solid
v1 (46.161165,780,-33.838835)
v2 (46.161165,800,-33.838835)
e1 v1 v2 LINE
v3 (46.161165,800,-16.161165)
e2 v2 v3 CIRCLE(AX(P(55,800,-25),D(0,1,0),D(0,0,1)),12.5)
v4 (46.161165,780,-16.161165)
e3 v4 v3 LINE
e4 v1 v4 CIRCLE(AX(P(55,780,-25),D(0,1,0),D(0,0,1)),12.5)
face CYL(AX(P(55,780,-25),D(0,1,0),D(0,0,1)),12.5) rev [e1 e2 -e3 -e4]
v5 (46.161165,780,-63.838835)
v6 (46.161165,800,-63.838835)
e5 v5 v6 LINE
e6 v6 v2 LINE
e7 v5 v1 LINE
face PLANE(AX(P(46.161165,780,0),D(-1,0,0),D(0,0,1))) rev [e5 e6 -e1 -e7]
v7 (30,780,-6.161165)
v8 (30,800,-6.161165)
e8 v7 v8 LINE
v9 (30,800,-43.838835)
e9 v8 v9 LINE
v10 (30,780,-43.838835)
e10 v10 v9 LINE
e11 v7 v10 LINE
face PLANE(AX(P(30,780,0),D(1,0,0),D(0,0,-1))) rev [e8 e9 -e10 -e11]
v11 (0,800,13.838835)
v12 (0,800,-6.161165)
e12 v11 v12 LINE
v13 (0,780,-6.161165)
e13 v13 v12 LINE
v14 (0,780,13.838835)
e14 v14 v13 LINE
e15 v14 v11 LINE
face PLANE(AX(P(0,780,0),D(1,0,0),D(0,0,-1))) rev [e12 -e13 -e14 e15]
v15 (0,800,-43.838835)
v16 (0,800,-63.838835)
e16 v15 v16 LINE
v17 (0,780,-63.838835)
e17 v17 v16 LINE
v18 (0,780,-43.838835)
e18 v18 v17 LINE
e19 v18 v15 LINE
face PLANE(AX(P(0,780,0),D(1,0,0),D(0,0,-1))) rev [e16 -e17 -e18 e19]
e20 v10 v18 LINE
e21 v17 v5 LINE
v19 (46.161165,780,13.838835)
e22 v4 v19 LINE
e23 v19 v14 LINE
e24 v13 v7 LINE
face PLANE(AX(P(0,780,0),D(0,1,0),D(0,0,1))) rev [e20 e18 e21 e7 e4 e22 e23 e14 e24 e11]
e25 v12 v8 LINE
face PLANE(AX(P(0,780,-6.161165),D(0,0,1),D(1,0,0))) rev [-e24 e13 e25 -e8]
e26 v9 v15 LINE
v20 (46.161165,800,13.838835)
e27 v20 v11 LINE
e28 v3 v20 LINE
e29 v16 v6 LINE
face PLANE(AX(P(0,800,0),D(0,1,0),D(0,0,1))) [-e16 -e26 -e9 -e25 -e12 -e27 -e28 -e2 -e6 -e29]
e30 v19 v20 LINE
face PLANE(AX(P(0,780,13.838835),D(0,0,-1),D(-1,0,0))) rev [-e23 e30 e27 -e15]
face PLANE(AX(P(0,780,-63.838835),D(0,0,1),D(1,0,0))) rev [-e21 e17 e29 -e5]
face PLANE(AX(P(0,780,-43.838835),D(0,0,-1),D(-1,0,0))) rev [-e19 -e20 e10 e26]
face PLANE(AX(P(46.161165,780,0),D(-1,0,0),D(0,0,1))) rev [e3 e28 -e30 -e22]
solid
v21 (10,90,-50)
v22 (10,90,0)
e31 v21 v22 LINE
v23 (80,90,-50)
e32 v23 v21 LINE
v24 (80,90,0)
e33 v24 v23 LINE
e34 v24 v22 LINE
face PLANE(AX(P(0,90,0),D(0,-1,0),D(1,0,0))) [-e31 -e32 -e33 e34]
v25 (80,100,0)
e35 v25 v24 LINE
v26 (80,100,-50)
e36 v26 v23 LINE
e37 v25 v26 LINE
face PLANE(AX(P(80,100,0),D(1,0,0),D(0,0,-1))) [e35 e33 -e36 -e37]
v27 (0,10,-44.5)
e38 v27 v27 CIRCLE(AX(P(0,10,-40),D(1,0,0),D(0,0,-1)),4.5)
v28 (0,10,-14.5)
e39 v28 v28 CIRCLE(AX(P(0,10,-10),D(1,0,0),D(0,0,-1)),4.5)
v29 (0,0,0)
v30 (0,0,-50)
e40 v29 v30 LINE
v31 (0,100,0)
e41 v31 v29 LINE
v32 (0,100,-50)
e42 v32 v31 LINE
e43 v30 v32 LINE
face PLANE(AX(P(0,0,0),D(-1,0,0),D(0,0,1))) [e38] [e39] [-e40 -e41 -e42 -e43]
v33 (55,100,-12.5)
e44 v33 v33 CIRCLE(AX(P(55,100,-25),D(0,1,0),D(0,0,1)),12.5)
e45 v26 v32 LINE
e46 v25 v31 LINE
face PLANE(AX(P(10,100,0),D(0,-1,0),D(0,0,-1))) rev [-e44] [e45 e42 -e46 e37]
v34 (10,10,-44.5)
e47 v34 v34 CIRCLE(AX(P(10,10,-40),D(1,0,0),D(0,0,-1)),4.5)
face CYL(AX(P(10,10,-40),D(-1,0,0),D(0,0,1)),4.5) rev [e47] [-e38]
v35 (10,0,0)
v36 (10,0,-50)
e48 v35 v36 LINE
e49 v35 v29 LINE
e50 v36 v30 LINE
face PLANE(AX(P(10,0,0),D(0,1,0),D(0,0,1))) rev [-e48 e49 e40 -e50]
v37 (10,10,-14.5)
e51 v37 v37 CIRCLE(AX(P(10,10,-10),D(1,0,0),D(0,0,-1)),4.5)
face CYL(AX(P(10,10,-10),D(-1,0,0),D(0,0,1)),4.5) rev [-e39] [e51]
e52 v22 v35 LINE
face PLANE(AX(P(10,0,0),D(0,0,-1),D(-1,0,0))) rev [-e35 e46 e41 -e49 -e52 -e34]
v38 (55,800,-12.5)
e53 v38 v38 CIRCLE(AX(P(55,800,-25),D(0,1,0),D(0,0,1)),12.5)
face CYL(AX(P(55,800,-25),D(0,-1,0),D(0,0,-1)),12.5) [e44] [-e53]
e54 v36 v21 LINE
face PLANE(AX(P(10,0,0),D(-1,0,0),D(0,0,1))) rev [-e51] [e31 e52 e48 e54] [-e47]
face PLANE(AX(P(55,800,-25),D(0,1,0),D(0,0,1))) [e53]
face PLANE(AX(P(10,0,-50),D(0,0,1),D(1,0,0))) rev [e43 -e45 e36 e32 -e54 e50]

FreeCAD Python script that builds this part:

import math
import FreeCAD as App
import Part
import Sketcher
from FreeCAD import Vector
Q = App.Units.Quantity

doc = App.newDocument("Part")
body = doc.addObject("PartDesign::Body", "Body")

sketch1 = doc.addObject("Sketcher::SketchObject", "Sketch")
body.addObject(sketch1)
sketch1.AttachmentSupport = (doc.YZ_Plane, [""])
sketch1.MapMode = "FlatFace"
sketch1.addGeometry([
    Part.LineSegment(Vector(100, 0, 0), Vector(0, 0, 0)),
    Part.LineSegment(Vector(0, 0, 0), Vector(0, -50, 0)),
    Part.LineSegment(Vector(0, -50, 0), Vector(100, -50, 0)),
    Part.LineSegment(Vector(100, -50, 0), Vector(100, 0, 0)),
    Part.Circle(Vector(10, -10, 0), Vector(0, 0, 1), 4.5),
    Part.Circle(Vector(10, -40, 0), Vector(0, 0, 1), 4.5),
], False)
sketch1.addConstraint([
    Sketcher.Constraint("Coincident", 0, 2, 1, 1),
    Sketcher.Constraint("Coincident", 1, 2, 2, 1),
    Sketcher.Constraint("Coincident", 2, 2, 3, 1),
    Sketcher.Constraint("Coincident", 3, 2, 0, 1),
    Sketcher.Constraint("Horizontal", 0),
    Sketcher.Constraint("Vertical", 1),
    Sketcher.Constraint("Horizontal", 2),
    Sketcher.Constraint("Vertical", 3),
    Sketcher.Constraint("Coincident", 0, 2, -1, 1),
    Sketcher.Constraint("Equal", 4, 5),
    Sketcher.Constraint("Vertical", 4, 3, 5, 3),
    Sketcher.Constraint("Diameter", 4, Q("9 mm")),
    Sketcher.Constraint("DistanceX", 0, 2, 0, 1, Q("100 mm")),
    Sketcher.Constraint("DistanceY", 1, 2, 1, 1, Q("50 mm")),
    Sketcher.Constraint("DistanceX", -1, 1, 4, 3, Q("10 mm")),
    Sketcher.Constraint("DistanceY", 4, 3, -1, 1, Q("10 mm")),
    Sketcher.Constraint("DistanceY", 5, 3, -1, 1, Q("40 mm")),
])
pad1 = doc.addObject("PartDesign::Pad", "Pad")
body.addObject(pad1)
pad1.Profile = sketch1
pad1.Length = 10

sketch2 = doc.addObject("Sketcher::SketchObject", "Sketch001")
body.addObject(sketch2)
sketch2.AttachmentSupport = (doc.XY_Plane, [""])
sketch2.MapMode = "FlatFace"
sketch2.AttachmentOffset = App.Placement(Vector(0, 0, -50), App.Rotation())
sketch2.addGeometry([
    Part.LineSegment(Vector(80, 100, 0), Vector(80, 90, 0)),
    Part.LineSegment(Vector(80, 90, 0), Vector(0, 90, 0)),
    Part.LineSegment(Vector(0, 90, 0), Vector(0, 100, 0)),
    Part.LineSegment(Vector(0, 100, 0), Vector(80, 100, 0)),
], False)
sketch2.addConstraint([
    Sketcher.Constraint("Coincident", 0, 2, 1, 1),
    Sketcher.Constraint("Coincident", 1, 2, 2, 1),
    Sketcher.Constraint("Coincident", 2, 2, 3, 1),
    Sketcher.Constraint("Coincident", 3, 2, 0, 1),
    Sketcher.Constraint("Vertical", 0),
    Sketcher.Constraint("Horizontal", 1),
    Sketcher.Constraint("Vertical", 2),
    Sketcher.Constraint("Horizontal", 3),
    Sketcher.Constraint("PointOnObject", 1, 2, -2),
    Sketcher.Constraint("DistanceX", 1, 2, 1, 1, Q("80 mm")),
    Sketcher.Constraint("DistanceY", 0, 2, 0, 1, Q("10 mm")),
    Sketcher.Constraint("DistanceY", -1, 1, 0, 2, Q("90 mm")),
])
pad2 = doc.addObject("PartDesign::Pad", "Pad001")
body.addObject(pad2)
pad2.Profile = sketch2
pad2.Length = 50

sketch3 = doc.addObject("Sketcher::SketchObject", "Sketch002")
body.addObject(sketch3)
sketch3.AttachmentSupport = (doc.XZ_Plane, [""])
sketch3.MapMode = "FlatFace"
sketch3.AttachmentOffset = App.Placement(Vector(0, 0, -100), App.Rotation())
sketch3.addGeometry(Part.Circle(Vector(55, -25, 0), Vector(0, 0, 1), 12), False)
sketch3.addConstraint([
    Sketcher.Constraint("Diameter", 0, Q("25 mm")),
    Sketcher.Constraint("DistanceX", -1, 1, 0, 3, Q("55 mm")),
    Sketcher.Constraint("DistanceY", 0, 3, -1, 1, Q("25 mm")),
])
pad3 = doc.addObject("PartDesign::Pad", "Pad002")
body.addObject(pad3)
pad3.Profile = sketch3
pad3.Length = 700
pad3.Reversed = True
body2 = doc.addObject("PartDesign::Body", "Body001")

sketch4 = doc.addObject("Sketcher::SketchObject", "Sketch003")
body2.addObject(sketch4)
sketch4.AttachmentSupport = (doc.getObject("XZ_Plane001"), [""])
sketch4.MapMode = "FlatFace"
sketch4.AttachmentOffset = App.Placement(Vector(0, 0, -800), App.Rotation())
sketch4.addGeometry([
    Part.LineSegment(Vector(46, 14, 0), Vector(46, -16, 0)),
    Part.ArcOfCircle(Part.Circle(Vector(55, -25, 0), Vector(0, 0, 1), 13), math.radians(135), math.radians(225)),
    Part.LineSegment(Vector(46, -34, 0), Vector(46, -64, 0)),
    Part.LineSegment(Vector(46, -64, 0), Vector(0, -64, 0)),
    Part.LineSegment(Vector(0, -64, 0), Vector(0, -44, 0)),
    Part.LineSegment(Vector(0, -44, 0), Vector(30, -44, 0)),
    Part.LineSegment(Vector(30, -44, 0), Vector(30, -6, 0)),
    Part.LineSegment(Vector(30, -6, 0), Vector(0, -6, 0)),
    Part.LineSegment(Vector(0, -6, 0), Vector(0, 14, 0)),
    Part.LineSegment(Vector(0, 14, 0), Vector(46, 14, 0)),
], False)
sketch4.addConstraint([
    Sketcher.Constraint("Coincident", 0, 2, 1, 1),
    Sketcher.Constraint("Coincident", 1, 2, 2, 1),
    Sketcher.Constraint("Coincident", 2, 2, 3, 1),
    Sketcher.Constraint("Coincident", 3, 2, 4, 1),
    Sketcher.Constraint("Coincident", 4, 2, 5, 1),
    Sketcher.Constraint("Coincident", 5, 2, 6, 1),
    Sketcher.Constraint("Coincident", 6, 2, 7, 1),
    Sketcher.Constraint("Coincident", 7, 2, 8, 1),
    Sketcher.Constraint("Coincident", 8, 2, 9, 1),
    Sketcher.Constraint("Coincident", 9, 2, 0, 1),
    Sketcher.Constraint("Vertical", 0),
    Sketcher.Constraint("Vertical", 2),
    Sketcher.Constraint("Horizontal", 3),
    Sketcher.Constraint("Vertical", 4),
    Sketcher.Constraint("Horizontal", 5),
    Sketcher.Constraint("Vertical", 6),
    Sketcher.Constraint("Horizontal", 7),
    Sketcher.Constraint("Vertical", 8),
    Sketcher.Constraint("Horizontal", 9),
    Sketcher.Constraint("PointOnObject", 3, 2, -2),
    Sketcher.Constraint("PointOnObject", 7, 2, -2),
    Sketcher.Constraint("Vertical", 0, 2, 1, 2),
    Sketcher.Constraint("Equal", 7, 0),
    Sketcher.Constraint("Equal", 0, 2),
    Sketcher.Constraint("Equal", 4, 8),
    Sketcher.Constraint("Radius", 1, Q("12.5 mm")),
    Sketcher.Constraint("DistanceX", 5, 1, 5, 2, Q("30 mm")),
    Sketcher.Constraint("DistanceY", 4, 1, 4, 2, Q("20 mm")),
    Sketcher.Constraint("DistanceX", -1, 1, 1, 3, Q("55 mm")),
    Sketcher.Constraint("DistanceY", 1, 3, -1, 1, Q("25 mm")),
    Sketcher.Constraint("DistanceY", 6, 1, 6, 2, Q("37.67767 mm")),
])
pad4 = doc.addObject("PartDesign::Pad", "Pad003")
body2.addObject(pad4)
pad4.Profile = sketch4
pad4.Length = 20

doc.recompute()
